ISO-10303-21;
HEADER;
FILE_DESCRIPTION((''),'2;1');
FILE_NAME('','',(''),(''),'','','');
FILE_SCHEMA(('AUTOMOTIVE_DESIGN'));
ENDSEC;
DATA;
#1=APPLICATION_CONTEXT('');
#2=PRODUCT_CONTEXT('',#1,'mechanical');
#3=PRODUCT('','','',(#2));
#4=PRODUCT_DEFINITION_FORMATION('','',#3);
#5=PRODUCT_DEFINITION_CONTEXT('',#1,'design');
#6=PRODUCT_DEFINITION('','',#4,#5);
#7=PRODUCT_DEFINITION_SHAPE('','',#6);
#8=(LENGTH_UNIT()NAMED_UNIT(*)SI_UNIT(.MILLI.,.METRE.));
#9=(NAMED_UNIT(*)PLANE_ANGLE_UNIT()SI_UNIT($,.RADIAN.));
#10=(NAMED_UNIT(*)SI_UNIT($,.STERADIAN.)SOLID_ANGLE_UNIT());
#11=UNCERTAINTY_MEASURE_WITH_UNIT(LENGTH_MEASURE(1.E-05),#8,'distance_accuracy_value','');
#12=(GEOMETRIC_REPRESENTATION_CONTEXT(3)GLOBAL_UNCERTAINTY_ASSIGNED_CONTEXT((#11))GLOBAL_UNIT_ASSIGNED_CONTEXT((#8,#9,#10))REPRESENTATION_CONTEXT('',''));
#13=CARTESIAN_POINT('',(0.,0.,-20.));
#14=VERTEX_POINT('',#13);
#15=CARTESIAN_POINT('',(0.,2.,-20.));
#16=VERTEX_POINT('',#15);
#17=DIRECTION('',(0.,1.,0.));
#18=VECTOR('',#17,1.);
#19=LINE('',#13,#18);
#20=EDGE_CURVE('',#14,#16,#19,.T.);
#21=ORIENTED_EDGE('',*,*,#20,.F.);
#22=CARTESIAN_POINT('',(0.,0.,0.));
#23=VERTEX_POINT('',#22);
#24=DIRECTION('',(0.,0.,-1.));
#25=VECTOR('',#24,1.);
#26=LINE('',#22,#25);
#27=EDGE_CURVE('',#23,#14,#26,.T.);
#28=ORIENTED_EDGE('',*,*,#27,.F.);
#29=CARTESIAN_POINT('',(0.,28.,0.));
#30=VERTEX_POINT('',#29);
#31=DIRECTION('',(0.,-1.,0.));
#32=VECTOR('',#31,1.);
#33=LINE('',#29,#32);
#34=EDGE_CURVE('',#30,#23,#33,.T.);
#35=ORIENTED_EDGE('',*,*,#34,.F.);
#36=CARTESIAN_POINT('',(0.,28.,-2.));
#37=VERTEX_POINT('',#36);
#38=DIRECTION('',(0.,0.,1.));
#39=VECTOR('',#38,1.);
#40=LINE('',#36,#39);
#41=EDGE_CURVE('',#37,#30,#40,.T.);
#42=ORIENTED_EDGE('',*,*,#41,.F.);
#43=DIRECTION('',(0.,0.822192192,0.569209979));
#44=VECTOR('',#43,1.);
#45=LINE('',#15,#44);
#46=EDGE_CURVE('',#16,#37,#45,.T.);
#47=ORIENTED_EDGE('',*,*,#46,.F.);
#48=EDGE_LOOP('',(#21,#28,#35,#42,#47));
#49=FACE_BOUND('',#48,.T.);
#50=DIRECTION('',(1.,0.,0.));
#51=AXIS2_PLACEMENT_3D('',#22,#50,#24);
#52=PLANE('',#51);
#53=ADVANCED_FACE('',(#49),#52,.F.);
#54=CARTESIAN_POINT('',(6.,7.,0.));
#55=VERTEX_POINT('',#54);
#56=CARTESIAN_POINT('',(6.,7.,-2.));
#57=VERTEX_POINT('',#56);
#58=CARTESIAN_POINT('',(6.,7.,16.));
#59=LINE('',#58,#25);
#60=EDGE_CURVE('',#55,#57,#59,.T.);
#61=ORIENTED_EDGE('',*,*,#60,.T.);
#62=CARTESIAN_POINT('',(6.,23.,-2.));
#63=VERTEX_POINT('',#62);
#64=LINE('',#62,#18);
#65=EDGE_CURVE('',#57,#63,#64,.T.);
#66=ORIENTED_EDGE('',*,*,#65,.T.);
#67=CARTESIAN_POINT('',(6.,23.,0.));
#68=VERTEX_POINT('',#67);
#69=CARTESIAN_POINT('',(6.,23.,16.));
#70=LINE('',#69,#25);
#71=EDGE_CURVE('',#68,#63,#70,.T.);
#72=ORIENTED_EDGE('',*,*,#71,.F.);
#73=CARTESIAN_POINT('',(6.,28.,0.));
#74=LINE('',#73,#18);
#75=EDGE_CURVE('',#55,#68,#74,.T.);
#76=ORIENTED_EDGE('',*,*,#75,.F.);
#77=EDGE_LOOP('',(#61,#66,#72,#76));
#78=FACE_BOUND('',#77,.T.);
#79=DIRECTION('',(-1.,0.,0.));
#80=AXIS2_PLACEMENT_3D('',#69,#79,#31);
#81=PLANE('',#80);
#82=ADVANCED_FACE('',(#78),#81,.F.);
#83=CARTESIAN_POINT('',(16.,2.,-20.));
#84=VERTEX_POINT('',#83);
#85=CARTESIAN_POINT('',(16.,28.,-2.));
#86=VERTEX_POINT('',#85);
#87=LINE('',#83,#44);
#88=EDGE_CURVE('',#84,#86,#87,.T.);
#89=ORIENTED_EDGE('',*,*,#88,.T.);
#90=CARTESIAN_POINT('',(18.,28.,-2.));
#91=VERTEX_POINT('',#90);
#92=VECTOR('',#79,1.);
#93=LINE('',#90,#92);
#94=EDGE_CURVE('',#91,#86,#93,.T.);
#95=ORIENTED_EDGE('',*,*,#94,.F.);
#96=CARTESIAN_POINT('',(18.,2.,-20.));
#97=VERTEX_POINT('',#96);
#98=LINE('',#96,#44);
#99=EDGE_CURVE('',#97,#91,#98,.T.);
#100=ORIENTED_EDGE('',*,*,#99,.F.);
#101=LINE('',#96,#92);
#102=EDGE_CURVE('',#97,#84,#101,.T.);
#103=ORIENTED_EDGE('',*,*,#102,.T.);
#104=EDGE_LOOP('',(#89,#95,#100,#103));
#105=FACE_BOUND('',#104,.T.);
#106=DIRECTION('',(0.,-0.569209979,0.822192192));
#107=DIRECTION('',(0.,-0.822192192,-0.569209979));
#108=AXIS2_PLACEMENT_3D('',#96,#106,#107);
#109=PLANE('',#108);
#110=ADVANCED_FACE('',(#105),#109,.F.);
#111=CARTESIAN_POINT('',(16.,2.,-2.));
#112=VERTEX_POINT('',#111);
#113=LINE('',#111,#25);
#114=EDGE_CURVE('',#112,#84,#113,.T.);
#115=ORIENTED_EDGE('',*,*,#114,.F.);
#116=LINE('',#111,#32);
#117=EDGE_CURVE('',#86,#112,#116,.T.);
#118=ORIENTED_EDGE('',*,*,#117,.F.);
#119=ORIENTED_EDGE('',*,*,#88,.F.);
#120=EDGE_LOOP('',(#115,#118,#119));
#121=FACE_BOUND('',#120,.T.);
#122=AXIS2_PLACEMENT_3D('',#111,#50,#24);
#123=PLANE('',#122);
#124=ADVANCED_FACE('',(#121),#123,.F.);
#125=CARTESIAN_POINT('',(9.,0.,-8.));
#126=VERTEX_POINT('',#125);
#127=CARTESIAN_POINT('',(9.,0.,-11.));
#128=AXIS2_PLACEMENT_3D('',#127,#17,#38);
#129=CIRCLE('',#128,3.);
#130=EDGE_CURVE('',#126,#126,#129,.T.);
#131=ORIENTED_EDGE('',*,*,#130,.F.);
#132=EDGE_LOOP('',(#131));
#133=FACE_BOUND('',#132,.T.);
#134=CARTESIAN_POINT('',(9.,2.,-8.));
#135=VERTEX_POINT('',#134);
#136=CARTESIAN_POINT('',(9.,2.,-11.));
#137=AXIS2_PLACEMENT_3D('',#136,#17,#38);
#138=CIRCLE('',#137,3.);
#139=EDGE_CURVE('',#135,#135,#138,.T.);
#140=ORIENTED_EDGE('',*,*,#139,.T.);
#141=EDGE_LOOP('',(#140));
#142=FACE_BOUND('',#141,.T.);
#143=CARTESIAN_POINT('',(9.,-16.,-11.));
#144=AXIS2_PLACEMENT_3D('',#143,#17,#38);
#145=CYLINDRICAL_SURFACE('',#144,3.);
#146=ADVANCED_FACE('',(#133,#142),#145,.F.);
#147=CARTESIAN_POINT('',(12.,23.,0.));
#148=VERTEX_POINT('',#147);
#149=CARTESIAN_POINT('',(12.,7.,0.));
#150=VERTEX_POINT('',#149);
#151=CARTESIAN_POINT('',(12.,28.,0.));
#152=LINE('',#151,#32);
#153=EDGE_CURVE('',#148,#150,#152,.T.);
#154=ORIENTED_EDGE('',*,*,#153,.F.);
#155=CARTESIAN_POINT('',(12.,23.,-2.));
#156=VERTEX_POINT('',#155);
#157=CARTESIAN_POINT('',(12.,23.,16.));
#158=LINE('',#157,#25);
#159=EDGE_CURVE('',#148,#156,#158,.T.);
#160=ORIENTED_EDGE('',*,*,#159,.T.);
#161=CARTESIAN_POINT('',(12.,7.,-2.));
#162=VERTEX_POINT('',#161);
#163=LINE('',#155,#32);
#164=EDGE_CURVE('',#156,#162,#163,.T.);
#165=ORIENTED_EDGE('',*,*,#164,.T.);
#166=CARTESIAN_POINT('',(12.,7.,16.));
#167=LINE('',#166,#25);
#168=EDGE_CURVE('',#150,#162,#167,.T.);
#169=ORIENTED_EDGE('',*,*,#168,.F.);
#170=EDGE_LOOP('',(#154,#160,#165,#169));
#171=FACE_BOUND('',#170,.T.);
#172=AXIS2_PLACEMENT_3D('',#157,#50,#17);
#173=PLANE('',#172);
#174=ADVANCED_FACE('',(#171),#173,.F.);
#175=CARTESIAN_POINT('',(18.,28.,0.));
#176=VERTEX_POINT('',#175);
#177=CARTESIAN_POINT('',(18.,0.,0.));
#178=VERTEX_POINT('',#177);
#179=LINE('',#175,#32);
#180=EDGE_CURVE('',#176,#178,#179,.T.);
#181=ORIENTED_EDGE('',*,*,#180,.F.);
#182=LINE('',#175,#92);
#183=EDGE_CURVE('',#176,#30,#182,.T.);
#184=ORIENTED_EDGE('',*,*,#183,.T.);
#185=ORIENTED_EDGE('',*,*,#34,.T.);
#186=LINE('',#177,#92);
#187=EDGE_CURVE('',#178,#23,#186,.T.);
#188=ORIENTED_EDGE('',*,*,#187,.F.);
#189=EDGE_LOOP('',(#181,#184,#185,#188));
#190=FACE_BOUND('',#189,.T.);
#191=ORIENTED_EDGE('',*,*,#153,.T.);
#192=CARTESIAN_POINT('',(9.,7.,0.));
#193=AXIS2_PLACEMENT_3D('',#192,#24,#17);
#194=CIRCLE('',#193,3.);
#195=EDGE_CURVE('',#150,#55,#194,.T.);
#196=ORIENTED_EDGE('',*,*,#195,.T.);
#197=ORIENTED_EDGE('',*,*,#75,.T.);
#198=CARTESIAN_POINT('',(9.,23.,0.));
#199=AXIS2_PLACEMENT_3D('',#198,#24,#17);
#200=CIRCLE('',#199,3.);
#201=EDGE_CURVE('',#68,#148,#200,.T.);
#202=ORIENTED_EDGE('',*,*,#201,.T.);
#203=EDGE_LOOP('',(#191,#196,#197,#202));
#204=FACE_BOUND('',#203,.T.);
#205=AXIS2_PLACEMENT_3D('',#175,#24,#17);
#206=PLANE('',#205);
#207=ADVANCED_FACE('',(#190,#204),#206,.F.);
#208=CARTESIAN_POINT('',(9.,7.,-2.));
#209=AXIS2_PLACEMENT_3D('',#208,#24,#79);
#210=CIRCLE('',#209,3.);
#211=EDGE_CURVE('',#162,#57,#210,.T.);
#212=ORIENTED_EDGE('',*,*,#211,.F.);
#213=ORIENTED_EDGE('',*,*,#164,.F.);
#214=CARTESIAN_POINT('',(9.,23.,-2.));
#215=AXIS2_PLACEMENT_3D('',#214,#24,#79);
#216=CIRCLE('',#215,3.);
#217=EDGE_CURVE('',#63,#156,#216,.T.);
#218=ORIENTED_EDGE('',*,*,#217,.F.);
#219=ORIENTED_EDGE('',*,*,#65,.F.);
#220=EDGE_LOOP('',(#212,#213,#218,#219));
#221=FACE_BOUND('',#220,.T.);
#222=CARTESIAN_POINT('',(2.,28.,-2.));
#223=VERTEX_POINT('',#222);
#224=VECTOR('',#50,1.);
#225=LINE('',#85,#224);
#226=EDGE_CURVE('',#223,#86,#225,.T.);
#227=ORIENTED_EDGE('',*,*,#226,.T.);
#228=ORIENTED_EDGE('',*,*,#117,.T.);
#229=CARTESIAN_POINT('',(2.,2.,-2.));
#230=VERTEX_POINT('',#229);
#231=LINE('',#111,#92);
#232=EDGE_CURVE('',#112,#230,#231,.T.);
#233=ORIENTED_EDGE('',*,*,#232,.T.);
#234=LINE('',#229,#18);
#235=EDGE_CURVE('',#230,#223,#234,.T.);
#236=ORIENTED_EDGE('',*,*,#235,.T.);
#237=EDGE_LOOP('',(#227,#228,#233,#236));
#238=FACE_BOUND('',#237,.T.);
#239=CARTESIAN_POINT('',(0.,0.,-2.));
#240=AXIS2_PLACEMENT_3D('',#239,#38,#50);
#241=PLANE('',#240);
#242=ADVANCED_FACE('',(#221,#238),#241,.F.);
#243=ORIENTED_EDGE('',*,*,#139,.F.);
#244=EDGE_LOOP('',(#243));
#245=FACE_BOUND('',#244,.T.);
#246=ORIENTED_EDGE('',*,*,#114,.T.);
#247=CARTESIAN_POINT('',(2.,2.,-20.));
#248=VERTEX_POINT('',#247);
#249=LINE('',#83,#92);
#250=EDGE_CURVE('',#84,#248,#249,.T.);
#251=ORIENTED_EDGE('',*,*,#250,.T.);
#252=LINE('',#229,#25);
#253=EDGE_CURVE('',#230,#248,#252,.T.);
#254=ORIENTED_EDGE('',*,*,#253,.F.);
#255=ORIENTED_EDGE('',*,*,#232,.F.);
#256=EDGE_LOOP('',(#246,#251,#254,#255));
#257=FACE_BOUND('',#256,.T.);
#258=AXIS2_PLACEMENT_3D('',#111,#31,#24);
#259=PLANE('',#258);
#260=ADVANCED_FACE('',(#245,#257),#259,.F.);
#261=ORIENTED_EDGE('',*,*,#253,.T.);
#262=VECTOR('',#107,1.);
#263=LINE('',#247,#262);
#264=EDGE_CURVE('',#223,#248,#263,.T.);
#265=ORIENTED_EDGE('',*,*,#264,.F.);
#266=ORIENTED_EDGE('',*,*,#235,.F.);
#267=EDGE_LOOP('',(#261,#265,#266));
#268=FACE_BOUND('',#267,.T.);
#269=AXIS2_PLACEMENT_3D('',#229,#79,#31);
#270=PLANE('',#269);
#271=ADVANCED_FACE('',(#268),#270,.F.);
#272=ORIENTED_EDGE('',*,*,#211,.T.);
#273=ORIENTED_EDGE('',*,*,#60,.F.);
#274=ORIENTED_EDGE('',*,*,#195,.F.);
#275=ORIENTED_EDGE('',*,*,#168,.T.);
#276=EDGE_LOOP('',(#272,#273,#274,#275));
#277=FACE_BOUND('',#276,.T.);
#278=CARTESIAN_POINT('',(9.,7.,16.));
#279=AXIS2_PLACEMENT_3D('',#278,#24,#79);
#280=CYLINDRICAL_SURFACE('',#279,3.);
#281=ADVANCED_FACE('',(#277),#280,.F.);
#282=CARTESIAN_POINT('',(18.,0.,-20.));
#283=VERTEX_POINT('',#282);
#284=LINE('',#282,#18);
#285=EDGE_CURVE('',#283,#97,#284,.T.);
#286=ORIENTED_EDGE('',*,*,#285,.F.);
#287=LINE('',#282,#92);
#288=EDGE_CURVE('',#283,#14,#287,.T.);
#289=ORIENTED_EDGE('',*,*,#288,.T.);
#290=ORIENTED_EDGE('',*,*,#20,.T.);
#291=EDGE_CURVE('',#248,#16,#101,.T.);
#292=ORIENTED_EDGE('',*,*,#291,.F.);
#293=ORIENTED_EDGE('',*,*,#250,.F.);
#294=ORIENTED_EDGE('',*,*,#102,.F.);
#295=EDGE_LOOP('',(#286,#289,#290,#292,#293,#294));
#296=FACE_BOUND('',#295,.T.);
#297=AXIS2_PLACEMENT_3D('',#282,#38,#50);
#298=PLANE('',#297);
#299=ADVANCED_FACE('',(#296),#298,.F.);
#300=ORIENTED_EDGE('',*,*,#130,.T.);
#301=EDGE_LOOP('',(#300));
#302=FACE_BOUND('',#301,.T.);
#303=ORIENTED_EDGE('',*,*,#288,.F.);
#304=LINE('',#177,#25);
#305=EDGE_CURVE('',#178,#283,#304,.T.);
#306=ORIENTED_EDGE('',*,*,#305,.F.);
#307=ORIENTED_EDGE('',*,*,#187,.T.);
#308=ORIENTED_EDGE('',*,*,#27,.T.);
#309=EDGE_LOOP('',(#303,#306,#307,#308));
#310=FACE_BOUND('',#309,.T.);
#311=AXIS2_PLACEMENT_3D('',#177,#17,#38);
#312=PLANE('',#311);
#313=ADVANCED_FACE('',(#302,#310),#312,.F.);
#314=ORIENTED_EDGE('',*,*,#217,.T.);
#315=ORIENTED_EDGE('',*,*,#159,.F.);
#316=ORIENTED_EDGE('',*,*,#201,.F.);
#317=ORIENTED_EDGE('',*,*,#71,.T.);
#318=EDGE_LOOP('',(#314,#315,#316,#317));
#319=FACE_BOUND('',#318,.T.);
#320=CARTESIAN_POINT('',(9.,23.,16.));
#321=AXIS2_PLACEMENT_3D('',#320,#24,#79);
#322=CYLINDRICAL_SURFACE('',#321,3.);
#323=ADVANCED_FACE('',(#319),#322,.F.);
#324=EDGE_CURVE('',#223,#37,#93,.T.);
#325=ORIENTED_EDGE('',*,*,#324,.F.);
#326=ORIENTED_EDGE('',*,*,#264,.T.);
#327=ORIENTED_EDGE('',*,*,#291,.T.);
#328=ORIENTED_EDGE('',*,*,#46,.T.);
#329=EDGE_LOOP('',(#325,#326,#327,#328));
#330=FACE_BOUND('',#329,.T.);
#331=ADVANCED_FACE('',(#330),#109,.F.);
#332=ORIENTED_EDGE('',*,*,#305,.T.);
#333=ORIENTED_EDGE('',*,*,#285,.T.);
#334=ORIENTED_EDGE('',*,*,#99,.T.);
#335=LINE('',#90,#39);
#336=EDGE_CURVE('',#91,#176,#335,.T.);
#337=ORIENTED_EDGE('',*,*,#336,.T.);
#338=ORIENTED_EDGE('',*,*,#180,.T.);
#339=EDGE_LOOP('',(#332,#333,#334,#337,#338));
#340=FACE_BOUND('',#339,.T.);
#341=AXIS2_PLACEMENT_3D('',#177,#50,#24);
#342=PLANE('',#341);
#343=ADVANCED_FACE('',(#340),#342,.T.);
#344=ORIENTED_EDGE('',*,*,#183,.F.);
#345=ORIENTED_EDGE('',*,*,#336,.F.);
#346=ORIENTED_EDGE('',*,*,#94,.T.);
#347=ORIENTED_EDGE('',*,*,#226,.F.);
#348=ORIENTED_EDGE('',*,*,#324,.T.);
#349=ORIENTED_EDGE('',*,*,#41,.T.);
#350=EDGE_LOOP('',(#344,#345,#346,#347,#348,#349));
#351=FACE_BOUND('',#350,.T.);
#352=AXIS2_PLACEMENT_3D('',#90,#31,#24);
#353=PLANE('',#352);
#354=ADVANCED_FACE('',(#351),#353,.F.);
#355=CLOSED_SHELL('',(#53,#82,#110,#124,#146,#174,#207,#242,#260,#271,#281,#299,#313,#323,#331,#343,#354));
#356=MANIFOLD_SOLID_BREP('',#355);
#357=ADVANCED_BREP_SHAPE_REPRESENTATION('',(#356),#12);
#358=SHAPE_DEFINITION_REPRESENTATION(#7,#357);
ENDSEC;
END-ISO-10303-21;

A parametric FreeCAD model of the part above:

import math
import FreeCAD as App
import Part
import Sketcher

V = App.Vector

doc = App.newDocument("Part")
body = doc.addObject("PartDesign::Body", "Body")

sketch1 = doc.addObject("Sketcher::SketchObject", "Sketch")
body.addObject(sketch1)
sketch1.AttachmentSupport = (doc.YZ_Plane, [""])
sketch1.MapMode = "FlatFace"
sketch1.addGeometry(Part.LineSegment(V(0, 0, 0), V(0, -20, 0)), False)
sketch1.addGeometry(Part.LineSegment(V(0, -20, 0), V(2, -20, 0)), False)
sketch1.addGeometry(Part.LineSegment(V(2, -20, 0), V(28, -2, 0)), False)
sketch1.addGeometry(Part.LineSegment(V(28, -2, 0), V(28, 0, 0)), False)
sketch1.addGeometry(Part.LineSegment(V(28, 0, 0), V(0, 0, 0)), False)
sketch1.addConstraint(Sketcher.Constraint("Coincident", 0, 2, 1, 1))
sketch1.addConstraint(Sketcher.Constraint("Coincident", 1, 2, 2, 1))
sketch1.addConstraint(Sketcher.Constraint("Coincident", 2, 2, 3, 1))
sketch1.addConstraint(Sketcher.Constraint("Coincident", 3, 2, 4, 1))
sketch1.addConstraint(Sketcher.Constraint("Coincident", 4, 2, 0, 1))
sketch1.addConstraint(Sketcher.Constraint("Vertical", 0))
sketch1.addConstraint(Sketcher.Constraint("Horizontal", 1))
sketch1.addConstraint(Sketcher.Constraint("Vertical", 3))
sketch1.addConstraint(Sketcher.Constraint("Horizontal", 4))
sketch1.addConstraint(Sketcher.Constraint("Coincident", 4, 2, -1, 1))
sketch1.addConstraint(Sketcher.Constraint("Equal", 1, 3))
sketch1.addConstraint(Sketcher.Constraint("DistanceX", 1, 1, 1, 2, 2.0))
sketch1.addConstraint(Sketcher.Constraint("DistanceX", 4, 2, 4, 1, 28.0))
sketch1.addConstraint(Sketcher.Constraint("DistanceY", 0, 2, 0, 1, 20.0))
pad1 = doc.addObject("PartDesign::Pad", "Pad")
body.addObject(pad1)
pad1.Profile = sketch1
pad1.Length = 18

sketch2 = doc.addObject("Sketcher::SketchObject", "Sketch001")
body.addObject(sketch2)
sketch2.AttachmentSupport = (doc.XY_Plane, [""])
sketch2.MapMode = "FlatFace"
sketch2.AttachmentOffset = App.Placement(V(0, 0, -20), App.Rotation())
sketch2.addGeometry(Part.LineSegment(V(16, 28, 0), V(16, 2, 0)), False)
sketch2.addGeometry(Part.LineSegment(V(16, 2, 0), V(2, 2, 0)), False)
sketch2.addGeometry(Part.LineSegment(V(2, 2, 0), V(2, 28, 0)), False)
sketch2.addGeometry(Part.LineSegment(V(2, 28, 0), V(16, 28, 0)), False)
sketch2.addConstraint(Sketcher.Constraint("Coincident", 0, 2, 1, 1))
sketch2.addConstraint(Sketcher.Constraint("Coincident", 1, 2, 2, 1))
sketch2.addConstraint(Sketcher.Constraint("Coincident", 2, 2, 3, 1))
sketch2.addConstraint(Sketcher.Constraint("Coincident", 3, 2, 0, 1))
sketch2.addConstraint(Sketcher.Constraint("Vertical", 0))
sketch2.addConstraint(Sketcher.Constraint("Horizontal", 1))
sketch2.addConstraint(Sketcher.Constraint("Vertical", 2))
sketch2.addConstraint(Sketcher.Constraint("Horizontal", 3))
sketch2.addConstraint(Sketcher.Constraint("DistanceX", 1, 2, 1, 1, 14.0))
sketch2.addConstraint(Sketcher.Constraint("DistanceY", 0, 2, 0, 1, 26.0))
sketch2.addConstraint(Sketcher.Constraint("DistanceX", -1, 1, 0, 2, 16.0))
sketch2.addConstraint(Sketcher.Constraint("DistanceY", -1, 1, 0, 2, 2.0))
pocket1 = doc.addObject("PartDesign::Pocket", "Pocket")
body.addObject(pocket1)
pocket1.Profile = sketch2
pocket1.Length = 18
pocket1.Reversed = True

sketch3 = doc.addObject("Sketcher::SketchObject", "Sketch002")
body.addObject(sketch3)
sketch3.AttachmentSupport = (doc.XY_Plane, [""])
sketch3.MapMode = "FlatFace"
sketch3.AttachmentOffset = App.Placement(V(0, 0, -2), App.Rotation())
sketch3.addGeometry(Part.LineSegment(V(6, 7, 0), V(6, 23, 0)), False)
sketch3.addGeometry(Part.ArcOfCircle(Part.Circle(V(9, 23, 0), V(0, 0, 1), 3), math.radians(0), math.radians(180)), False)
sketch3.addGeometry(Part.LineSegment(V(12, 23, 0), V(12, 7, 0)), False)
sketch3.addGeometry(Part.ArcOfCircle(Part.Circle(V(9, 7, 0), V(0, 0, 1), 3), math.radians(180), math.radians(360)), False)
sketch3.addConstraint(Sketcher.Constraint("Tangent", 0, 2, 1, 2))
sketch3.addConstraint(Sketcher.Constraint("Tangent", 1, 1, 2, 1))
sketch3.addConstraint(Sketcher.Constraint("Tangent", 2, 2, 3, 2))
sketch3.addConstraint(Sketcher.Constraint("Tangent", 3, 1, 0, 1))
sketch3.addConstraint(Sketcher.Constraint("Vertical", 0))
sketch3.addConstraint(Sketcher.Constraint("Vertical", 2))
sketch3.addConstraint(Sketcher.Constraint("Radius", 1, 3.0))
sketch3.addConstraint(Sketcher.Constraint("DistanceY", 0, 1, 0, 2, 16.0))
sketch3.addConstraint(Sketcher.Constraint("DistanceX", -1, 1, 1, 3, 9.0))
sketch3.addConstraint(Sketcher.Constraint("DistanceY", -1, 1, 1, 3, 23.0))
pocket2 = doc.addObject("PartDesign::Pocket", "Pocket001")
body.addObject(pocket2)
pocket2.Profile = sketch3
pocket2.Length = 18
pocket2.Reversed = True

sketch4 = doc.addObject("Sketcher::SketchObject", "Sketch003")
body.addObject(sketch4)
sketch4.AttachmentSupport = (doc.XZ_Plane, [""])
sketch4.MapMode = "FlatFace"
sketch4.AttachmentOffset = App.Placement(V(0, 0, -2), App.Rotation())
sketch4.addGeometry(Part.Circle(V(9, -11, 0), V(0, 0, 1), 3), False)
sketch4.addConstraint(Sketcher.Constraint("Diameter", 0, 6.0))
sketch4.addConstraint(Sketcher.Constraint("DistanceX", -1, 1, 0, 3, 9.0))
sketch4.addConstraint(Sketcher.Constraint("DistanceY", 0, 3, -1, 1, 11.0))
pocket3 = doc.addObject("PartDesign::Pocket", "Pocket002")
body.addObject(pocket3)
pocket3.Profile = sketch4
pocket3.Length = 18
pocket3.Reversed = True

doc.recompute()
